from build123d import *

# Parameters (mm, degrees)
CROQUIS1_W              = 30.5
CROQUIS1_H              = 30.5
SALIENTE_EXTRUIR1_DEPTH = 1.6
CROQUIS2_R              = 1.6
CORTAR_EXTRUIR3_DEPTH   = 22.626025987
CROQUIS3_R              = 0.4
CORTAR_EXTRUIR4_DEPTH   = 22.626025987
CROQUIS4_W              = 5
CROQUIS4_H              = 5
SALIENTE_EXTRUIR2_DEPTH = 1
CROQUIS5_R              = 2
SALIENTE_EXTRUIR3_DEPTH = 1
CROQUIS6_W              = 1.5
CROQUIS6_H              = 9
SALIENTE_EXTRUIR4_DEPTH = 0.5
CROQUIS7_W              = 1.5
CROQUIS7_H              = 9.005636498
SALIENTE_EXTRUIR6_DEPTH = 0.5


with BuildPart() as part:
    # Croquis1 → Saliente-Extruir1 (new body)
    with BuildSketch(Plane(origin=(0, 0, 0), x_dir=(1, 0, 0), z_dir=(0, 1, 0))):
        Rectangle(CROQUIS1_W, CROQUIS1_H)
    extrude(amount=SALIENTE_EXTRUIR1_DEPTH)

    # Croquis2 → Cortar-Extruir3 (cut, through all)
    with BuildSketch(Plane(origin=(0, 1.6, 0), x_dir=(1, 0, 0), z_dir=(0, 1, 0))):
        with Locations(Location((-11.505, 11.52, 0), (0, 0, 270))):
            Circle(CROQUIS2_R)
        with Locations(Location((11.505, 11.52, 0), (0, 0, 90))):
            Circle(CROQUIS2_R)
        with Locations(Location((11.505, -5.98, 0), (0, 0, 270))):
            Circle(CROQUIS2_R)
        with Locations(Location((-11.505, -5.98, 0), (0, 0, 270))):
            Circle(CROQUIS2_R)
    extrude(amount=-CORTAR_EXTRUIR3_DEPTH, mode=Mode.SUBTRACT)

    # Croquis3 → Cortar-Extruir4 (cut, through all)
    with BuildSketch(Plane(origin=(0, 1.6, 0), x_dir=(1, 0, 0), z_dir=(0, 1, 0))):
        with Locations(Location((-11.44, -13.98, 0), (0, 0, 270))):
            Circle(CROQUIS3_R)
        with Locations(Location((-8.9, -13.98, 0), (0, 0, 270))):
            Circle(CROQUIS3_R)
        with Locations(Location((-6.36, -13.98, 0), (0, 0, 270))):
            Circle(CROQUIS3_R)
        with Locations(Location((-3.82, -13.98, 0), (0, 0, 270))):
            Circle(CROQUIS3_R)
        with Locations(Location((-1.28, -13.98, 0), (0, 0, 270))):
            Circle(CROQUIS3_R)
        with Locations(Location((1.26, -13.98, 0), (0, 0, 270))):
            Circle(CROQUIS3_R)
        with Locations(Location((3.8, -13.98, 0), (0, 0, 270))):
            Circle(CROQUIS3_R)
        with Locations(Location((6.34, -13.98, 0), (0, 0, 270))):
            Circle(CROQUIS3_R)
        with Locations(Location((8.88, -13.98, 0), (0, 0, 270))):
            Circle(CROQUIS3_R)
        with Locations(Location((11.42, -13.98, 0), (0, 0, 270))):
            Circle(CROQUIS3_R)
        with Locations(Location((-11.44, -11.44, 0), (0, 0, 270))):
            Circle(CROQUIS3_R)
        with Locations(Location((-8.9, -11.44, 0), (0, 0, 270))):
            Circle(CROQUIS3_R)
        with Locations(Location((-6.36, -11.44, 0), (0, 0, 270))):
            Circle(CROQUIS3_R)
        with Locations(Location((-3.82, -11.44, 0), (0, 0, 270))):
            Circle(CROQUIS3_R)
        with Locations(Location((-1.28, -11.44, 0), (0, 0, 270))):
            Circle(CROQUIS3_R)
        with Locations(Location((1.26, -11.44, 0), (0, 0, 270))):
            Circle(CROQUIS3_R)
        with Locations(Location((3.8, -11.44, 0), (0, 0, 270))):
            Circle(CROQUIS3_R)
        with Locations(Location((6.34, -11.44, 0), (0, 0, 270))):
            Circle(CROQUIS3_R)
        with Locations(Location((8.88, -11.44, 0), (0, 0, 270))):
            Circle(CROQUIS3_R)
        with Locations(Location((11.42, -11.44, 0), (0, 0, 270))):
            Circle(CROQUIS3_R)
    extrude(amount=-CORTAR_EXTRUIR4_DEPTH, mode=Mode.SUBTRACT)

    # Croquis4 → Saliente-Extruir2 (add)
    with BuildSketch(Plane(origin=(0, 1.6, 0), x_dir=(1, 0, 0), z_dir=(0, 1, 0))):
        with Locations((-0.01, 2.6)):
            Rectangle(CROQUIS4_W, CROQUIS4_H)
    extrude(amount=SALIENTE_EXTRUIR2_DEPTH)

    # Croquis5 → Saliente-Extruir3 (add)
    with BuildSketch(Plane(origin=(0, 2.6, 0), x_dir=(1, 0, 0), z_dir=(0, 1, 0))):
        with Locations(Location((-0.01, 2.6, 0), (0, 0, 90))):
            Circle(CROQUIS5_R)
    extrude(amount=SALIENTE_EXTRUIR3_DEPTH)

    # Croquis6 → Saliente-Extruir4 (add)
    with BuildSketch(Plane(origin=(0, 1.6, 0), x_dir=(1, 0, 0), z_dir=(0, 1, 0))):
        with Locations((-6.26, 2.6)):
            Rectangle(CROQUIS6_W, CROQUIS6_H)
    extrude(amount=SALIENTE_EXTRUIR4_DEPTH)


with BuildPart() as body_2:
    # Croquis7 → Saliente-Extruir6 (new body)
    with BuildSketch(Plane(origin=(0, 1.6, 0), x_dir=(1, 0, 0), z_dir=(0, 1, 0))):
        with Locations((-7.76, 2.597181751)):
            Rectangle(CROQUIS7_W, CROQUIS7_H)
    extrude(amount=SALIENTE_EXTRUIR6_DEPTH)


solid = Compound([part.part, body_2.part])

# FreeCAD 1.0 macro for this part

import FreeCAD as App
import Part
import Sketcher
from FreeCAD import Vector
Q = App.Units.Quantity

doc = App.newDocument("Part")
body = doc.addObject("PartDesign::Body", "Body")

# Sketch on XZ plane
sketch1 = doc.addObject("Sketcher::SketchObject", "Sketch")
body.addObject(sketch1)
sketch1.AttachmentSupport = (doc.XZ_Plane, [""])
sketch1.MapMode = "FlatFace"
sketch1.addGeometry([
    Part.LineSegment(Vector(-15, -15, 0), Vector(-15, 15, 0)),
    Part.LineSegment(Vector(-15, 15, 0), Vector(15, 15, 0)),
    Part.LineSegment(Vector(15, 15, 0), Vector(15, -15, 0)),
    Part.LineSegment(Vector(15, -15, 0), Vector(-15, -15, 0)),
], False)
sketch1.addConstraint([
    Sketcher.Constraint("Coincident", 0, 2, 1, 1),
    Sketcher.Constraint("Coincident", 1, 2, 2, 1),
    Sketcher.Constraint("Coincident", 2, 2, 3, 1),
    Sketcher.Constraint("Coincident", 3, 2, 0, 1),
    Sketcher.Constraint("Vertical", 0),
    Sketcher.Constraint("Horizontal", 1),
    Sketcher.Constraint("Vertical", 2),
    Sketcher.Constraint("Horizontal", 3),
    Sketcher.Constraint("Symmetric", 0, 2, 2, 2, -1, 1),
    Sketcher.Constraint("Equal", 3, 0),
    Sketcher.Constraint("DistanceX", 1, 1, 1, 2, Q("30.5 mm")),
])
pad1 = doc.addObject("PartDesign::Pad", "Pad")
body.addObject(pad1)
pad1.Profile = sketch1
pad1.Length = 1.6
pad1.Reversed = True

# Sketch on XZ plane
sketch2 = doc.addObject("Sketcher::SketchObject", "Sketch001")
body.addObject(sketch2)
sketch2.AttachmentSupport = (doc.XZ_Plane, [""])
sketch2.MapMode = "FlatFace"
sketch2.AttachmentOffset = App.Placement(Vector(0, 0, -1.6), App.Rotation())
sketch2.addGeometry([
    Part.Circle(Vector(-11.5, -11.5, 0), Vector(0, 0, 1), 1.6),
    Part.Circle(Vector(11.5, -11.5, 0), Vector(0, 0, 1), 1.6),
    Part.Circle(Vector(11.5, 6, 0), Vector(0, 0, 1), 1.6),
    Part.Circle(Vector(-11.5, 6, 0), Vector(0, 0, 1), 1.6),
], False)
sketch2.addConstraint([
    Sketcher.Constraint("Equal", 0, 1),
    Sketcher.Constraint("Equal", 1, 2),
    Sketcher.Constraint("Equal", 2, 3),
    Sketcher.Constraint("Symmetric", 0, 3, 1, 3, -2),
    Sketcher.Constraint("Symmetric", 2, 3, 3, 3, -2),
    Sketcher.Constraint("Vertical", 1, 3, 2, 3),
    Sketcher.Constraint("Diameter", 0, Q("3.2 mm")),
    Sketcher.Constraint("DistanceY", 1, 3, 2, 3, Q("17.5 mm")),
    Sketcher.Constraint("DistanceY", 0, 3, -1, 1, Q("11.52 mm")),
    Sketcher.Constraint("DistanceX", 0, 3, 1, 3, Q("23.01 mm")),
])
pocket1 = doc.addObject("PartDesign::Pocket", "Pocket")
body.addObject(pocket1)
pocket1.Profile = sketch2
pocket1.Type = "ThroughAll"
pocket1.Reversed = True

# Sketch on XZ plane
sketch3 = doc.addObject("Sketcher::SketchObject", "Sketch002")
body.addObject(sketch3)
sketch3.AttachmentSupport = (doc.XZ_Plane, [""])
sketch3.MapMode = "FlatFace"
sketch3.AttachmentOffset = App.Placement(Vector(0, 0, -1.6), App.Rotation())
sketch3.addGeometry([
    Part.Circle(Vector(-11.44, 13.98, 0), Vector(0, 0, 1), 0.4),  # 0
    Part.Circle(Vector(-8.9, 13.98, 0), Vector(0, 0, 1), 0.4),  # 1
    Part.Circle(Vector(-6.36, 13.98, 0), Vector(0, 0, 1), 0.4),  # 2
    Part.Circle(Vector(-3.82, 13.98, 0), Vector(0, 0, 1), 0.4),  # 3
    Part.Circle(Vector(-1.28, 13.98, 0), Vector(0, 0, 1), 0.4),  # 4
    Part.Circle(Vector(1.26, 13.98, 0), Vector(0, 0, 1), 0.4),  # 5
    Part.Circle(Vector(3.8, 13.98, 0), Vector(0, 0, 1), 0.4),  # 6
    Part.Circle(Vector(6.34, 13.98, 0), Vector(0, 0, 1), 0.4),  # 7
    Part.Circle(Vector(8.88, 13.98, 0), Vector(0, 0, 1), 0.4),  # 8
    Part.Circle(Vector(11.42, 13.98, 0), Vector(0, 0, 1), 0.4),  # 9
    Part.Circle(Vector(-11.44, 11.44, 0), Vector(0, 0, 1), 0.4),  # 10
    Part.Circle(Vector(-8.9, 11.44, 0), Vector(0, 0, 1), 0.4),  # 11
    Part.Circle(Vector(-6.36, 11.44, 0), Vector(0, 0, 1), 0.4),  # 12
    Part.Circle(Vector(-3.82, 11.44, 0), Vector(0, 0, 1), 0.4),  # 13
    Part.Circle(Vector(-1.28, 11.44, 0), Vector(0, 0, 1), 0.4),  # 14
    Part.Circle(Vector(1.26, 11.44, 0), Vector(0, 0, 1), 0.4),  # 15
    Part.Circle(Vector(3.8, 11.44, 0), Vector(0, 0, 1), 0.4),  # 16
    Part.Circle(Vector(6.34, 11.44, 0), Vector(0, 0, 1), 0.4),  # 17
    Part.Circle(Vector(8.88, 11.44, 0), Vector(0, 0, 1), 0.4),  # 18
    Part.Circle(Vector(11.42, 11.44, 0), Vector(0, 0, 1), 0.4),  # 19
], False)
sketch3.addConstraint([
    Sketcher.Constraint("Equal", 0, 1),
    Sketcher.Constraint("Equal", 1, 2),
    Sketcher.Constraint("Equal", 2, 3),
    Sketcher.Constraint("Equal", 3, 4),
    Sketcher.Constraint("Equal", 4, 5),
    Sketcher.Constraint("Equal", 5, 6),
    Sketcher.Constraint("Equal", 6, 7),
    Sketcher.Constraint("Equal", 7, 8),
    Sketcher.Constraint("Equal", 8, 9),
    Sketcher.Constraint("Equal", 9, 10),
    Sketcher.Constraint("Equal", 10, 11),
    Sketcher.Constraint("Equal", 11, 12),
    Sketcher.Constraint("Equal", 12, 13),
    Sketcher.Constraint("Equal", 13, 14),
    Sketcher.Constraint("Equal", 14, 15),
    Sketcher.Constraint("Equal", 15, 16),
    Sketcher.Constraint("Equal", 16, 17),
    Sketcher.Constraint("Equal", 17, 18),
    Sketcher.Constraint("Equal", 18, 19),
    Sketcher.Constraint("Horizontal", 0, 3, 1, 3),
    Sketcher.Constraint("Horizontal", 1, 3, 2, 3),
    Sketcher.Constraint("Horizontal", 2, 3, 3, 3),
    Sketcher.Constraint("Horizontal", 3, 3, 4, 3),
    Sketcher.Constraint("Horizontal", 4, 3, 5, 3),
    Sketcher.Constraint("Horizontal", 5, 3, 6, 3),
    Sketcher.Constraint("Horizontal", 6, 3, 7, 3),
    Sketcher.Constraint("Horizontal", 7, 3, 8, 3),
    Sketcher.Constraint("Horizontal", 8, 3, 9, 3),
    Sketcher.Constraint("Horizontal", 10, 3, 11, 3),
    Sketcher.Constraint("Horizontal", 11, 3, 12, 3),
    Sketcher.Constraint("Horizontal", 12, 3, 13, 3),
    Sketcher.Constraint("Horizontal", 13, 3, 14, 3),
    Sketcher.Constraint("Horizontal", 14, 3, 15, 3),
    Sketcher.Constraint("Horizontal", 15, 3, 16, 3),
    Sketcher.Constraint("Horizontal", 16, 3, 17, 3),
    Sketcher.Constraint("Horizontal", 17, 3, 18, 3),
    Sketcher.Constraint("Horizontal", 18, 3, 19, 3),
    Sketcher.Constraint("Vertical", 0, 3, 10, 3),
    Sketcher.Constraint("Vertical", 1, 3, 11, 3),
    Sketcher.Constraint("Vertical", 2, 3, 12, 3),
    Sketcher.Constraint("Vertical", 3, 3, 13, 3),
    Sketcher.Constraint("Vertical", 4, 3, 14, 3),
    Sketcher.Constraint("Vertical", 5, 3, 15, 3),
    Sketcher.Constraint("Vertical", 6, 3, 16, 3),
    Sketcher.Constraint("Vertical", 7, 3, 17, 3),
    Sketcher.Constraint("Vertical", 8, 3, 18, 3),
    Sketcher.Constraint("Vertical", 9, 3, 19, 3),
    Sketcher.Constraint("Diameter", 0, Q("0.8 mm")),
    Sketcher.Constraint("DistanceX", 1, 3, -1, 1, Q("8.9 mm")),
    Sketcher.Constraint("DistanceX", -1, 1, 6, 3, Q("3.8 mm")),
    Sketcher.Constraint("DistanceX", 0, 3, 5, 3, Q("12.7 mm")),
    Sketcher.Constraint("DistanceX", 2, 3, 7, 3, Q("12.7 mm")),
    Sketcher.Constraint("DistanceX", 3, 3, 8, 3, Q("12.7 mm")),
    Sketcher.Constraint("DistanceX", 4, 3, 9, 3, Q("12.7 mm")),
    Sketcher.Constraint("DistanceX", 0, 3, -1, 1, Q("11.44 mm")),
    Sketcher.Constraint("DistanceY", -1, 1, 0, 3, Q("13.98 mm")),
    Sketcher.Constraint("DistanceX", 2, 3, -1, 1, Q("6.36 mm")),
    Sketcher.Constraint("DistanceX", 3, 3, -1, 1, Q("3.82 mm")),
    Sketcher.Constraint("DistanceX", 4, 3, -1, 1, Q("1.28 mm")),
    Sketcher.Constraint("DistanceY", -1, 1, 10, 3, Q("11.44 mm")),
])
pocket2 = doc.addObject("PartDesign::Pocket", "Pocket001")
body.addObject(pocket2)
pocket2.Profile = sketch3
pocket2.Type = "ThroughAll"
pocket2.Reversed = True

# Sketch on XZ plane
sketch4 = doc.addObject("Sketcher::SketchObject", "Sketch003")
body.addObject(sketch4)
sketch4.AttachmentSupport = (doc.XZ_Plane, [""])
sketch4.MapMode = "FlatFace"
sketch4.AttachmentOffset = App.Placement(Vector(0, 0, -1.6), App.Rotation())
sketch4.addGeometry([
    Part.LineSegment(Vector(-3, -5, 0), Vector(-3, 0, 0)),
    Part.LineSegment(Vector(-3, 0, 0), Vector(2, 0, 0)),
    Part.LineSegment(Vector(2, 0, 0), Vector(2, -5, 0)),
    Part.LineSegment(Vector(2, -5, 0), Vector(-3, -5, 0)),
], False)
sketch4.addConstraint([
    Sketcher.Constraint("Coincident", 0, 2, 1, 1),
    Sketcher.Constraint("Coincident", 1, 2, 2, 1),
    Sketcher.Constraint("Coincident", 2, 2, 3, 1),
    Sketcher.Constraint("Coincident", 3, 2, 0, 1),
    Sketcher.Constraint("Vertical", 0),
    Sketcher.Constraint("Horizontal", 1),
    Sketcher.Constraint("Vertical", 2),
    Sketcher.Constraint("Horizontal", 3),
    Sketcher.Constraint("Equal", 3, 0),
    Sketcher.Constraint("DistanceX", 1, 1, 1, 2, Q("5 mm")),
    Sketcher.Constraint("DistanceY", 0, 2, -1, 1, Q("0.1 mm")),
    Sketcher.Constraint("DistanceX", 0, 2, -1, 1, Q("2.51 mm")),
])
pad2 = doc.addObject("PartDesign::Pad", "Pad001")
body.addObject(pad2)
pad2.Profile = sketch4
pad2.Length = 1
pad2.Reversed = True

# Sketch on XZ plane
sketch5 = doc.addObject("Sketcher::SketchObject", "Sketch004")
body.addObject(sketch5)
sketch5.AttachmentSupport = (doc.XZ_Plane, [""])
sketch5.MapMode = "FlatFace"
sketch5.AttachmentOffset = App.Placement(Vector(0, 0, -2.6), App.Rotation())
sketch5.addGeometry(Part.Circle(Vector(0, -2.6, 0), Vector(0, 0, 1), 2), False)
sketch5.addConstraint([
    Sketcher.Constraint("Diameter", 0, Q("4 mm")),
    Sketcher.Constraint("DistanceY", 0, 3, -1, 1, Q("2.6 mm")),
    Sketcher.Constraint("DistanceX", 0, 3, -1, 1, Q("0.01 mm")),
])
pad3 = doc.addObject("PartDesign::Pad", "Pad002")
body.addObject(pad3)
pad3.Profile = sketch5
pad3.Length = 1
pad3.Reversed = True

# Sketch on XZ plane
sketch6 = doc.addObject("Sketcher::SketchObject", "Sketch005")
body.addObject(sketch6)
sketch6.AttachmentSupport = (doc.XZ_Plane, [""])
sketch6.MapMode = "FlatFace"
sketch6.AttachmentOffset = App.Placement(Vector(0, 0, -1.6), App.Rotation())
sketch6.addGeometry([
    Part.LineSegment(Vector(-7, -7.1, 0), Vector(-7, 1.9, 0)),
    Part.LineSegment(Vector(-7, 1.9, 0), Vector(-5.5, 1.9, 0)),
    Part.LineSegment(Vector(-5.5, 1.9, 0), Vector(-5.5, -7.1, 0)),
    Part.LineSegment(Vector(-5.5, -7.1, 0), Vector(-7, -7.1, 0)),
], False)
sketch6.addConstraint([
    Sketcher.Constraint("Coincident", 0, 2, 1, 1),
    Sketcher.Constraint("Coincident", 1, 2, 2, 1),
    Sketcher.Constraint("Coincident", 2, 2, 3, 1),
    Sketcher.Constraint("Coincident", 3, 2, 0, 1),
    Sketcher.Constraint("Vertical", 0),
    Sketcher.Constraint("Horizontal", 1),
    Sketcher.Constraint("Vertical", 2),
    Sketcher.Constraint("Horizontal", 3),
    Sketcher.Constraint("DistanceY", 0, 1, 0, 2, Q("9 mm")),
    Sketcher.Constraint("DistanceX", 1, 1, 1, 2, Q("1.5 mm")),
    Sketcher.Constraint("DistanceY", -1, 1, 0, 2, Q("1.9 mm")),
    Sketcher.Constraint("DistanceX", 0, 2, -1, 1, Q("7.01 mm")),
])
pad4 = doc.addObject("PartDesign::Pad", "Pad003")
body.addObject(pad4)
pad4.Profile = sketch6
pad4.Length = 0.5
pad4.Reversed = True
body2 = doc.addObject("PartDesign::Body", "Body001")

# Sketch on XZ plane
sketch7 = doc.addObject("Sketcher::SketchObject", "Sketch006")
body2.addObject(sketch7)
sketch7.AttachmentSupport = (doc.getObject("XZ_Plane001"), [""])
sketch7.MapMode = "FlatFace"
sketch7.AttachmentOffset = App.Placement(Vector(0, 0, -1.6), App.Rotation())
sketch7.addGeometry([
    Part.LineSegment(Vector(-8.5, -7.1, 0), Vector(-8.5, 1.9, 0)),
    Part.LineSegment(Vector(-8.5, 1.9, 0), Vector(-7, 1.9, 0)),
    Part.LineSegment(Vector(-7, 1.9, 0), Vector(-7, -7.1, 0)),
    Part.LineSegment(Vector(-7, -7.1, 0), Vector(-8.5, -7.1, 0)),
], False)
sketch7.addConstraint([
    Sketcher.Constraint("Coincident", 0, 2, 1, 1),
    Sketcher.Constraint("Coincident", 1, 2, 2, 1),
    Sketcher.Constraint("Coincident", 2, 2, 3, 1),
    Sketcher.Constraint("Coincident", 3, 2, 0, 1),
    Sketcher.Constraint("Vertical", 0),
    Sketcher.Constraint("Horizontal", 1),
    Sketcher.Constraint("Vertical", 2),
    Sketcher.Constraint("Horizontal", 3),
    Sketcher.Constraint("DistanceX", 1, 1, 1, 2, Q("1.5 mm")),
    Sketcher.Constraint("DistanceY", 2, 2, -1, 1, Q("7.1 mm")),
    Sketcher.Constraint("DistanceX", 0, 2, -1, 1, Q("8.51 mm")),
    Sketcher.Constraint("DistanceY", 0, 1, 0, 2, Q("9.005636 mm")),
])
pad5 = doc.addObject("PartDesign::Pad", "Pad004")
body2.addObject(pad5)
pad5.Profile = sketch7
pad5.Length = 0.5
pad5.Reversed = True

doc.recompute()
